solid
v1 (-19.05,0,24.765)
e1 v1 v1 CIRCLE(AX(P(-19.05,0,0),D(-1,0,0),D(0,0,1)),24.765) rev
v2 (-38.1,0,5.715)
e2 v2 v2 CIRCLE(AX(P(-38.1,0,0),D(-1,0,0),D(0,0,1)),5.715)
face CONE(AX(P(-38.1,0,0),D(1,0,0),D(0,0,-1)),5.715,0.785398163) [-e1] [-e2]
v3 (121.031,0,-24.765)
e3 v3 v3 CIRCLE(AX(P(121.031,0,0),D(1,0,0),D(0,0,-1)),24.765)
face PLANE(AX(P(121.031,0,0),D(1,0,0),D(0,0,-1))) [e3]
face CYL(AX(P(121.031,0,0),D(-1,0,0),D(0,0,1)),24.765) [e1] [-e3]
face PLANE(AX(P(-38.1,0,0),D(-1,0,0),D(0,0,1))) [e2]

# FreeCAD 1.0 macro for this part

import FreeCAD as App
import Part
import Sketcher
from FreeCAD import Vector
Q = App.Units.Quantity


def edges_at(feature, points):
    """Names of the edges that pass closest to the given points."""
    edges = feature.Shape.Edges
    near = lambda p: min(range(len(edges)), key=lambda i: edges[i].distToShape(Part.Vertex(*p))[0])
    return sorted({f"Edge{near(p) + 1}" for p in points})

doc = App.newDocument("Part")
params = doc.addObject("Spreadsheet::Sheet", "Params")
for row, (alias, value) in enumerate([
    ("sketch1_diameter", "1.95 in"),
    ("pad1_length", "4.765 in"),
    ("sketch2_diameter", "1.95 in"),
    ("pad2_length", "1.5 in"),
    ("chamfer_size", "0.75 in"),
], start=1):
    params.set(f"A{row}", alias)
    params.set(f"B{row}", "=" + value)
    params.setAlias(f"B{row}", alias)

body = doc.addObject("PartDesign::Body", "Body")

# Sketch on YZ plane
sketch1 = body.newObject("Sketcher::SketchObject", "Sketch")
sketch1.AttachmentSupport = (doc.getObject("YZ_Plane"), [""])
sketch1.MapMode = "FlatFace"
sketch1.addGeometry(Part.Circle(Vector(0, 0, 0), Vector(0, 0, 1), 25), False)
sketch1.addConstraint(Sketcher.Constraint("Coincident", 0, 3, -1, 1))
sketch1.addConstraint(Sketcher.Constraint("Diameter", 0, Q("1.95 in")))
sketch1.setExpression("Constraints[1]", "Params.sketch1_diameter")
pad1 = body.newObject("PartDesign::Pad", "Pad")
pad1.Profile = sketch1
pad1.setExpression("Length", "Params.pad1_length")

# Sketch on YZ plane
sketch2 = body.newObject("Sketcher::SketchObject", "Sketch001")
sketch2.AttachmentSupport = (doc.getObject("YZ_Plane"), [""])
sketch2.MapMode = "FlatFace"
sketch2.addGeometry(Part.Circle(Vector(0, 0, 0), Vector(0, 0, 1), 25), False)
sketch2.addConstraint(Sketcher.Constraint("Coincident", 0, 3, -1, 1))
sketch2.addConstraint(Sketcher.Constraint("Diameter", 0, Q("1.95 in")))
sketch2.setExpression("Constraints[1]", "Params.sketch2_diameter")
pad2 = body.newObject("PartDesign::Pad", "Pad001")
pad2.Profile = sketch2
pad2.setExpression("Length", "Params.pad2_length")
pad2.Reversed = True
doc.recompute()

chamfer = body.newObject("PartDesign::Chamfer", "Chamfer")
chamfer.Base = (pad2, edges_at(pad2, [(-38.1, 0, -24.765)]))
chamfer.setExpression("Size", "Params.chamfer_size")

doc.recompute()
